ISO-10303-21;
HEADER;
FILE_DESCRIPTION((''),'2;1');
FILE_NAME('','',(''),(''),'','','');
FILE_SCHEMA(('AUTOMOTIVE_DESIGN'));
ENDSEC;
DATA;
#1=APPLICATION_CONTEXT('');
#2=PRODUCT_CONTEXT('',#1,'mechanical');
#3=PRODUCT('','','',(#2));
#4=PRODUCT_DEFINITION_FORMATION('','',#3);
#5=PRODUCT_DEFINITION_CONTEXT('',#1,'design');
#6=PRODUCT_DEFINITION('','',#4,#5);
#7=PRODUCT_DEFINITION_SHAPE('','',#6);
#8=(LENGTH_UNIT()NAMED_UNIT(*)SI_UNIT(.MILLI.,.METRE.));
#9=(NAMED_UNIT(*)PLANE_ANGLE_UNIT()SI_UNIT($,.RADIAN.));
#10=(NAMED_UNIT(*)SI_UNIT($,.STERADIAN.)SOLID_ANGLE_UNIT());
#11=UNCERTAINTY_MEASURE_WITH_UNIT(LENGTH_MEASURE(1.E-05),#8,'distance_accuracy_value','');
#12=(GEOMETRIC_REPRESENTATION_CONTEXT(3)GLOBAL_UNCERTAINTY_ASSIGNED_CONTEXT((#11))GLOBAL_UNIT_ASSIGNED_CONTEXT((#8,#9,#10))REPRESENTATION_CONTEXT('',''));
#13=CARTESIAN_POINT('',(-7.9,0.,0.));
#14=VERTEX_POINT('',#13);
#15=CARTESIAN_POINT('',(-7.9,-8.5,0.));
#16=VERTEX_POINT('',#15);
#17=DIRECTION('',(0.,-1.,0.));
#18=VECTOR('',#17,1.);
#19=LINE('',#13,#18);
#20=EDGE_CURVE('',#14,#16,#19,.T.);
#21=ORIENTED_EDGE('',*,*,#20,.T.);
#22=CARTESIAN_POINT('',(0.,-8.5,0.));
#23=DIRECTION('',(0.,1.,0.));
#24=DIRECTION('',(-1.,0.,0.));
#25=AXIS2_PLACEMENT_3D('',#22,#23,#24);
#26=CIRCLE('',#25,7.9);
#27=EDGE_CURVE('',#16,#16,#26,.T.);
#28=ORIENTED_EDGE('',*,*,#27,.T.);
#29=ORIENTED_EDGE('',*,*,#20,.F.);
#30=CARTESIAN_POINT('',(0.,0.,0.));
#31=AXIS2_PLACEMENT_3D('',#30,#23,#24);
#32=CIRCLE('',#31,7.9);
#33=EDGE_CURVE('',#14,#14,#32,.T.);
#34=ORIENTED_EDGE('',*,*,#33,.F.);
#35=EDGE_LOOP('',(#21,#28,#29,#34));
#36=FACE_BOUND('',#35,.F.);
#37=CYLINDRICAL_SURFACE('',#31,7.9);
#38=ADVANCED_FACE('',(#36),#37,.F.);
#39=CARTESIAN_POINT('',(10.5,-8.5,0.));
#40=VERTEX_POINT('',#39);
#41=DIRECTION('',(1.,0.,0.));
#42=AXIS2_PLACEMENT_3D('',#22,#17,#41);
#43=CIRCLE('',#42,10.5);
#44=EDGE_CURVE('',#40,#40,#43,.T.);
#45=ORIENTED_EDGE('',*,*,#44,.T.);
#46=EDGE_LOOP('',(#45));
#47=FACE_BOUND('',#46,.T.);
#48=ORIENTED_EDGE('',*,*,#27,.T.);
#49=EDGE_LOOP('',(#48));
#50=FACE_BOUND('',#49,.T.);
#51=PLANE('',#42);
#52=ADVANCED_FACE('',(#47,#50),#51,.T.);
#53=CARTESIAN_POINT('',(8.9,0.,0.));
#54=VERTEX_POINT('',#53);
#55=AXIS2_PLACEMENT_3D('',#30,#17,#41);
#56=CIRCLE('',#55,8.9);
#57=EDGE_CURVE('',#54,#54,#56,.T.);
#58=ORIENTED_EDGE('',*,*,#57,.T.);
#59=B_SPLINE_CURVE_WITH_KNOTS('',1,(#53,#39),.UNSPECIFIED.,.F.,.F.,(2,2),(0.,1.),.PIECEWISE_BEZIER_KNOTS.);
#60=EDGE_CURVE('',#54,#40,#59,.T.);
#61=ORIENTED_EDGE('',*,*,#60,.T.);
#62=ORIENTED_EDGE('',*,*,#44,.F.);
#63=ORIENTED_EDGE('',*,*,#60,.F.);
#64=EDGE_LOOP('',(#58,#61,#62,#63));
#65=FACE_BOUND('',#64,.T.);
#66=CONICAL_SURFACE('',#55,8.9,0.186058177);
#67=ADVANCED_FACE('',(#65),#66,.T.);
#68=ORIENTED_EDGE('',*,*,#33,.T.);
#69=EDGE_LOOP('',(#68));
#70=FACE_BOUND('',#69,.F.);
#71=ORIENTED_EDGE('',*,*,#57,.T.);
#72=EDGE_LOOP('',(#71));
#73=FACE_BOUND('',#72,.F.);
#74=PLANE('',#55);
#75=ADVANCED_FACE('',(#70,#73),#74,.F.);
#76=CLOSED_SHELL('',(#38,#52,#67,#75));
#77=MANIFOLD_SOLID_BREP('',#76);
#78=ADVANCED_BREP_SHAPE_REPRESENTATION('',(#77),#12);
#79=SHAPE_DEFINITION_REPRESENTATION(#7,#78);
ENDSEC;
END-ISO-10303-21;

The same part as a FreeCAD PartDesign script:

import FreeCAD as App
import Part
import Sketcher
Q = App.Units.Quantity

doc = App.newDocument("Part")
params = doc.addObject("Spreadsheet::Sheet", "Params")
for row, (alias, value) in enumerate([
    ("sketch1_diameter", "17.8 mm"),
    ("sketch2_diameter", "21 mm"),
    ("sketch3_diameter", "15.8 mm"),
], start=1):
    params.set(f"A{row}", alias)
    params.set(f"B{row}", "=" + value)
    params.setAlias(f"B{row}", alias)

body = doc.addObject("PartDesign::Body", "Body")

sketch1 = body.newObject("Sketcher::SketchObject", "Sketch")
sketch1.AttachmentSupport = (doc.getObject("XZ_Plane"), [""])
sketch1.MapMode = "FlatFace"
sketch1.addGeometry(Part.Circle(App.Vector(0, 0, 0), App.Vector(0, 0, 1), 9), False)
sketch1.addConstraint(Sketcher.Constraint("Coincident", 0, 3, -1, 1))
sketch1.addConstraint(Sketcher.Constraint("Diameter", 0, Q("17.8 mm")))
sketch1.setExpression("Constraints[1]", "Params.sketch1_diameter")

sketch2 = body.newObject("Sketcher::SketchObject", "Sketch001")
sketch2.AttachmentSupport = (doc.getObject("XZ_Plane"), [""])
sketch2.MapMode = "FlatFace"
sketch2.AttachmentOffset = App.Placement(App.Vector(0, 0, 8.5), App.Rotation())
sketch2.addGeometry(Part.Circle(App.Vector(0, 0, 0), App.Vector(0, 0, 1), 10), False)
sketch2.addConstraint(Sketcher.Constraint("Coincident", 0, 3, -1, 1))
sketch2.addConstraint(Sketcher.Constraint("Diameter", 0, Q("21 mm")))
sketch2.setExpression("Constraints[1]", "Params.sketch2_diameter")

additiveloft = body.newObject("PartDesign::AdditiveLoft", "AdditiveLoft")
additiveloft.Profile = sketch1
additiveloft.Sections = [sketch2]

sketch3 = body.newObject("Sketcher::SketchObject", "Sketch002")
sketch3.AttachmentSupport = (doc.getObject("XZ_Plane"), [""])
sketch3.MapMode = "FlatFace"
sketch3.addGeometry(Part.Circle(App.Vector(0, 0, 0), App.Vector(0, 0, 1), 8), False)
sketch3.addConstraint(Sketcher.Constraint("Coincident", 0, 3, -1, 1))
sketch3.addConstraint(Sketcher.Constraint("Diameter", 0, Q("15.8 mm")))
sketch3.setExpression("Constraints[1]", "Params.sketch3_diameter")
pocket1 = body.newObject("PartDesign::Pocket", "Pocket")
pocket1.Profile = sketch3
pocket1.Type = "ThroughAll"
pocket1.Reversed = True

doc.recompute()
